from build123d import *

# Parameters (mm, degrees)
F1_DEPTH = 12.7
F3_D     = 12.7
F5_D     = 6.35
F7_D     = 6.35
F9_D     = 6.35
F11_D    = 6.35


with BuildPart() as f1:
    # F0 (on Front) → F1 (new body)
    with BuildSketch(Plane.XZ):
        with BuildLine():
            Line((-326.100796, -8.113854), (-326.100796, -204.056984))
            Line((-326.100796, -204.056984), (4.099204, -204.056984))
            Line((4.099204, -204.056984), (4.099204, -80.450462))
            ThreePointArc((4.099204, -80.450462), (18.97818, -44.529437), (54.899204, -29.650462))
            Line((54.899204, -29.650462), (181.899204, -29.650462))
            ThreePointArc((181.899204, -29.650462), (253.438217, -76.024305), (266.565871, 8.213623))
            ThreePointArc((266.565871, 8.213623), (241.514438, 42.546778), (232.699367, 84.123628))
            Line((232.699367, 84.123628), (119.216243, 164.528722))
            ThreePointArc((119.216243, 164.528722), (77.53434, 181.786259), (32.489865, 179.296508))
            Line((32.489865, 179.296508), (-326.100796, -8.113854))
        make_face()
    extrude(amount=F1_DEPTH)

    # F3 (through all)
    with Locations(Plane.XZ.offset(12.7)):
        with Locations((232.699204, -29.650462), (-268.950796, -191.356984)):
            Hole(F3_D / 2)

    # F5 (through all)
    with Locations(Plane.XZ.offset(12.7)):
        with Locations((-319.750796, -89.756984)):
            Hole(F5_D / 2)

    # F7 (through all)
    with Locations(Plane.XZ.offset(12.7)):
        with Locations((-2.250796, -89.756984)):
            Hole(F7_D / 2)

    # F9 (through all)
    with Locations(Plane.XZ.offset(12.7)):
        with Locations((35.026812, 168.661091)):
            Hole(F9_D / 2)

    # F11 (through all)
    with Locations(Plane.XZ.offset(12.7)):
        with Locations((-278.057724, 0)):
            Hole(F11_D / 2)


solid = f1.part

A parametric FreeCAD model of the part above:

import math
import FreeCAD as App
import Part
import Sketcher

V = App.Vector
Q = App.Units.Quantity

doc = App.newDocument("Part")
body = doc.addObject("PartDesign::Body", "Body")

# Sketch on XZ plane
sketch1 = body.newObject("Sketcher::SketchObject", "Sketch")
sketch1.AttachmentSupport = (doc.getObject("XZ_Plane"), [""])
sketch1.MapMode = "FlatFace"
sketch1.addGeometry([
    Part.LineSegment(V(-326.100796, -8.113854, 0), V(-326.100796, -204.056984, 0)),  # 0
    Part.LineSegment(V(-326.100796, -204.056984, 0), V(4.099204, -204.056984, 0)),  # 1
    Part.LineSegment(V(4.099204, -204.056984, 0), V(4.099204, -80.450462, 0)),  # 2
    Part.ArcOfCircle(Part.Circle(V(54.899204, -80.450462, 0), V(0, 0, 1), 50.8), math.radians(90), math.radians(180)),  # 3
    Part.LineSegment(V(54.899204, -29.650462, 0), V(181.899204, -29.650462, 0)),  # 4
    Part.ArcOfCircle(Part.Circle(V(232.699204, -29.650461, 0), V(0, 0, 1), 50.8), math.radians(-179.999999), math.radians(48.189685)),  # 5
    Part.ArcOfCircle(Part.Circle(V(334.299203, 83.941791, 0), V(0, 0, 1), 101.599999), math.radians(179.897456), math.radians(228.189686)),  # 6
    Part.LineSegment(V(232.699367, 84.123628, 0), V(119.216243, 164.528722, 0)),  # 7
    Part.ArcOfCircle(Part.Circle(V(60.479362, 81.627948, 0), V(0, 0, 1), 101.599998), math.radians(54.681654), math.radians(105.991049)),  # 8
    Part.LineSegment(V(32.489865, 179.296508, 0), V(-326.100796, -8.113854, 0)),  # 9
], False)
sketch1.addConstraint([
    Sketcher.Constraint("Coincident", 0, 2, 1, 1),
    Sketcher.Constraint("Coincident", 1, 2, 2, 1),
    Sketcher.Constraint("Tangent", 2, 2, 3, 2),
    Sketcher.Constraint("Tangent", 3, 1, 4, 1),
    Sketcher.Constraint("Coincident", 4, 2, 5, 1),
    Sketcher.Constraint("Tangent", 5, 2, 6, 2),
    Sketcher.Constraint("Coincident", 6, 1, 7, 1),
    Sketcher.Constraint("Tangent", 7, 2, 8, 1),
    Sketcher.Constraint("Coincident", 8, 2, 9, 1),
    Sketcher.Constraint("Coincident", 9, 2, 0, 1),
    Sketcher.Constraint("Vertical", 0),
    Sketcher.Constraint("Horizontal", 1),
    Sketcher.Constraint("Vertical", 2),
    Sketcher.Constraint("Horizontal", 4),
    Sketcher.Constraint("Equal", 3, 5),
    Sketcher.Constraint("Equal", 6, 8),
    Sketcher.Constraint("Horizontal", 5, 3, 3, 1),
    Sketcher.Constraint("Radius", 3, Q("2 in")),
    Sketcher.Constraint("Radius", 6, Q("3.9999999 in")),
    Sketcher.Constraint("DistanceX", 1, 1, 1, 2, Q("13 in")),
    Sketcher.Constraint("DistanceX", 4, 1, 4, 2, Q("5 in")),
    Sketcher.Constraint("DistanceX", 5, 3, 6, 3, Q("3.9999999 in")),
    Sketcher.Constraint("DistanceY", 0, 2, 0, 1, Q("195.94313 mm")),
    Sketcher.Constraint("DistanceY", 2, 1, 2, 2, Q("123.606522 mm")),
    Sketcher.Constraint("DistanceY", 5, 2, 7, 2, Q("156.315099 mm")),
    Sketcher.Constraint("DistanceY", 3, 3, -1, 1, Q("80.450462 mm")),
    Sketcher.Constraint("DistanceX", -1, 1, 8, 3, Q("60.479362 mm")),
    Sketcher.Constraint("DistanceY", -1, 1, 8, 3, Q("81.627948 mm")),
    Sketcher.Constraint("DistanceX", -1, 1, 5, 2, Q("266.565871 mm")),
    Sketcher.Constraint("DistanceY", 8, 3, 8, 2, Q("97.66856 mm")),
])
pad1 = body.newObject("PartDesign::Pad", "Pad")
pad1.Profile = sketch1
pad1.Length = Q("0.5 in")

# Sketch on XZ plane
sketch2 = body.newObject("Sketcher::SketchObject", "Sketch001")
sketch2.AttachmentSupport = (doc.getObject("XZ_Plane"), [""])
sketch2.MapMode = "FlatFace"
sketch2.AttachmentOffset = App.Placement(V(0, 0, 0.5 * 25.4), App.Rotation())
sketch2.addGeometry([
    Part.Circle(V(232.699204, -29.650462, 0), V(0, 0, 1), 6.35),
    Part.Circle(V(-268.950796, -191.356984, 0), V(0, 0, 1), 6.35),
], False)
sketch2.addConstraint([
    Sketcher.Constraint("Equal", 0, 1),
    Sketcher.Constraint("Diameter", 0, Q("0.5 in")),
    Sketcher.Constraint("DistanceX", 1, 3, 0, 3, Q("19.75 in")),
    Sketcher.Constraint("DistanceY", 1, 3, 0, 3, Q("161.706522 mm")),
    Sketcher.Constraint("DistanceX", -1, 1, 0, 3, Q("232.699204 mm")),
    Sketcher.Constraint("DistanceY", 0, 3, -1, 1, Q("29.650462 mm")),
])
doc.recompute()
hole = body.newObject("PartDesign::Hole", "Hole")
hole.Profile = sketch2
hole.ThreadType = "None"
hole.Diameter = Q("0.5 in")
hole.DepthType = "ThroughAll"

# Sketch on XZ plane
sketch3 = body.newObject("Sketcher::SketchObject", "Sketch002")
sketch3.AttachmentSupport = (doc.getObject("XZ_Plane"), [""])
sketch3.MapMode = "FlatFace"
sketch3.AttachmentOffset = App.Placement(V(0, 0, 0.5 * 25.4), App.Rotation())
sketch3.addGeometry(Part.Circle(V(-319.750796, -89.756984, 0), V(0, 0, 1), 3.175), False)
sketch3.addConstraint([
    Sketcher.Constraint("Diameter", 0, Q("0.25 in")),
    Sketcher.Constraint("DistanceX", 0, 3, -1, 1, Q("319.750796 mm")),
    Sketcher.Constraint("DistanceY", 0, 3, -1, 1, Q("89.756984 mm")),
])
doc.recompute()
hole2 = body.newObject("PartDesign::Hole", "Hole001")
hole2.Profile = sketch3
hole2.ThreadType = "None"
hole2.Diameter = Q("0.25 in")
hole2.DepthType = "ThroughAll"

# Sketch on XZ plane
sketch4 = body.newObject("Sketcher::SketchObject", "Sketch003")
sketch4.AttachmentSupport = (doc.getObject("XZ_Plane"), [""])
sketch4.MapMode = "FlatFace"
sketch4.AttachmentOffset = App.Placement(V(0, 0, 0.5 * 25.4), App.Rotation())
sketch4.addGeometry(Part.Circle(V(-2.250796, -89.756984, 0), V(0, 0, 1), 3.175), False)
sketch4.addConstraint([
    Sketcher.Constraint("Diameter", 0, Q("0.25 in")),
    Sketcher.Constraint("DistanceX", 0, 3, -1, 1, Q("2.250796 mm")),
    Sketcher.Constraint("DistanceY", 0, 3, -1, 1, Q("89.756984 mm")),
])
doc.recompute()
hole3 = body.newObject("PartDesign::Hole", "Hole002")
hole3.Profile = sketch4
hole3.ThreadType = "None"
hole3.Diameter = Q("0.25 in")
hole3.DepthType = "ThroughAll"

# Sketch on XZ plane
sketch5 = body.newObject("Sketcher::SketchObject", "Sketch004")
sketch5.AttachmentSupport = (doc.getObject("XZ_Plane"), [""])
sketch5.MapMode = "FlatFace"
sketch5.AttachmentOffset = App.Placement(V(0, 0, 0.5 * 25.4), App.Rotation())
sketch5.addGeometry(Part.Circle(V(35.026812, 168.661091, 0), V(0, 0, 1), 3.175), False)
sketch5.addConstraint([
    Sketcher.Constraint("Diameter", 0, Q("0.25 in")),
    Sketcher.Constraint("DistanceY", -1, 1, 0, 3, Q("168.661091 mm")),
    Sketcher.Constraint("DistanceX", -1, 1, 0, 3, Q("35.026812 mm")),
])
doc.recompute()
hole4 = body.newObject("PartDesign::Hole", "Hole003")
hole4.Profile = sketch5
hole4.ThreadType = "None"
hole4.Diameter = Q("0.25 in")
hole4.DepthType = "ThroughAll"

# Sketch on XZ plane
sketch6 = body.newObject("Sketcher::SketchObject", "Sketch005")
sketch6.AttachmentSupport = (doc.getObject("XZ_Plane"), [""])
sketch6.MapMode = "FlatFace"
sketch6.AttachmentOffset = App.Placement(V(0, 0, 0.5 * 25.4), App.Rotation())
sketch6.addGeometry(Part.Circle(V(-278.057724, 0, 0), V(0, 0, 1), 3.175), False)
sketch6.addConstraint([
    Sketcher.Constraint("PointOnObject", 0, 3, -1),
    Sketcher.Constraint("Diameter", 0, Q("0.25 in")),
    Sketcher.Constraint("DistanceX", 0, 3, -1, 1, Q("278.057724 mm")),
])
doc.recompute()
hole5 = body.newObject("PartDesign::Hole", "Hole004")
hole5.Profile = sketch6
hole5.ThreadType = "None"
hole5.Diameter = Q("0.25 in")
hole5.DepthType = "ThroughAll"

doc.recompute()
